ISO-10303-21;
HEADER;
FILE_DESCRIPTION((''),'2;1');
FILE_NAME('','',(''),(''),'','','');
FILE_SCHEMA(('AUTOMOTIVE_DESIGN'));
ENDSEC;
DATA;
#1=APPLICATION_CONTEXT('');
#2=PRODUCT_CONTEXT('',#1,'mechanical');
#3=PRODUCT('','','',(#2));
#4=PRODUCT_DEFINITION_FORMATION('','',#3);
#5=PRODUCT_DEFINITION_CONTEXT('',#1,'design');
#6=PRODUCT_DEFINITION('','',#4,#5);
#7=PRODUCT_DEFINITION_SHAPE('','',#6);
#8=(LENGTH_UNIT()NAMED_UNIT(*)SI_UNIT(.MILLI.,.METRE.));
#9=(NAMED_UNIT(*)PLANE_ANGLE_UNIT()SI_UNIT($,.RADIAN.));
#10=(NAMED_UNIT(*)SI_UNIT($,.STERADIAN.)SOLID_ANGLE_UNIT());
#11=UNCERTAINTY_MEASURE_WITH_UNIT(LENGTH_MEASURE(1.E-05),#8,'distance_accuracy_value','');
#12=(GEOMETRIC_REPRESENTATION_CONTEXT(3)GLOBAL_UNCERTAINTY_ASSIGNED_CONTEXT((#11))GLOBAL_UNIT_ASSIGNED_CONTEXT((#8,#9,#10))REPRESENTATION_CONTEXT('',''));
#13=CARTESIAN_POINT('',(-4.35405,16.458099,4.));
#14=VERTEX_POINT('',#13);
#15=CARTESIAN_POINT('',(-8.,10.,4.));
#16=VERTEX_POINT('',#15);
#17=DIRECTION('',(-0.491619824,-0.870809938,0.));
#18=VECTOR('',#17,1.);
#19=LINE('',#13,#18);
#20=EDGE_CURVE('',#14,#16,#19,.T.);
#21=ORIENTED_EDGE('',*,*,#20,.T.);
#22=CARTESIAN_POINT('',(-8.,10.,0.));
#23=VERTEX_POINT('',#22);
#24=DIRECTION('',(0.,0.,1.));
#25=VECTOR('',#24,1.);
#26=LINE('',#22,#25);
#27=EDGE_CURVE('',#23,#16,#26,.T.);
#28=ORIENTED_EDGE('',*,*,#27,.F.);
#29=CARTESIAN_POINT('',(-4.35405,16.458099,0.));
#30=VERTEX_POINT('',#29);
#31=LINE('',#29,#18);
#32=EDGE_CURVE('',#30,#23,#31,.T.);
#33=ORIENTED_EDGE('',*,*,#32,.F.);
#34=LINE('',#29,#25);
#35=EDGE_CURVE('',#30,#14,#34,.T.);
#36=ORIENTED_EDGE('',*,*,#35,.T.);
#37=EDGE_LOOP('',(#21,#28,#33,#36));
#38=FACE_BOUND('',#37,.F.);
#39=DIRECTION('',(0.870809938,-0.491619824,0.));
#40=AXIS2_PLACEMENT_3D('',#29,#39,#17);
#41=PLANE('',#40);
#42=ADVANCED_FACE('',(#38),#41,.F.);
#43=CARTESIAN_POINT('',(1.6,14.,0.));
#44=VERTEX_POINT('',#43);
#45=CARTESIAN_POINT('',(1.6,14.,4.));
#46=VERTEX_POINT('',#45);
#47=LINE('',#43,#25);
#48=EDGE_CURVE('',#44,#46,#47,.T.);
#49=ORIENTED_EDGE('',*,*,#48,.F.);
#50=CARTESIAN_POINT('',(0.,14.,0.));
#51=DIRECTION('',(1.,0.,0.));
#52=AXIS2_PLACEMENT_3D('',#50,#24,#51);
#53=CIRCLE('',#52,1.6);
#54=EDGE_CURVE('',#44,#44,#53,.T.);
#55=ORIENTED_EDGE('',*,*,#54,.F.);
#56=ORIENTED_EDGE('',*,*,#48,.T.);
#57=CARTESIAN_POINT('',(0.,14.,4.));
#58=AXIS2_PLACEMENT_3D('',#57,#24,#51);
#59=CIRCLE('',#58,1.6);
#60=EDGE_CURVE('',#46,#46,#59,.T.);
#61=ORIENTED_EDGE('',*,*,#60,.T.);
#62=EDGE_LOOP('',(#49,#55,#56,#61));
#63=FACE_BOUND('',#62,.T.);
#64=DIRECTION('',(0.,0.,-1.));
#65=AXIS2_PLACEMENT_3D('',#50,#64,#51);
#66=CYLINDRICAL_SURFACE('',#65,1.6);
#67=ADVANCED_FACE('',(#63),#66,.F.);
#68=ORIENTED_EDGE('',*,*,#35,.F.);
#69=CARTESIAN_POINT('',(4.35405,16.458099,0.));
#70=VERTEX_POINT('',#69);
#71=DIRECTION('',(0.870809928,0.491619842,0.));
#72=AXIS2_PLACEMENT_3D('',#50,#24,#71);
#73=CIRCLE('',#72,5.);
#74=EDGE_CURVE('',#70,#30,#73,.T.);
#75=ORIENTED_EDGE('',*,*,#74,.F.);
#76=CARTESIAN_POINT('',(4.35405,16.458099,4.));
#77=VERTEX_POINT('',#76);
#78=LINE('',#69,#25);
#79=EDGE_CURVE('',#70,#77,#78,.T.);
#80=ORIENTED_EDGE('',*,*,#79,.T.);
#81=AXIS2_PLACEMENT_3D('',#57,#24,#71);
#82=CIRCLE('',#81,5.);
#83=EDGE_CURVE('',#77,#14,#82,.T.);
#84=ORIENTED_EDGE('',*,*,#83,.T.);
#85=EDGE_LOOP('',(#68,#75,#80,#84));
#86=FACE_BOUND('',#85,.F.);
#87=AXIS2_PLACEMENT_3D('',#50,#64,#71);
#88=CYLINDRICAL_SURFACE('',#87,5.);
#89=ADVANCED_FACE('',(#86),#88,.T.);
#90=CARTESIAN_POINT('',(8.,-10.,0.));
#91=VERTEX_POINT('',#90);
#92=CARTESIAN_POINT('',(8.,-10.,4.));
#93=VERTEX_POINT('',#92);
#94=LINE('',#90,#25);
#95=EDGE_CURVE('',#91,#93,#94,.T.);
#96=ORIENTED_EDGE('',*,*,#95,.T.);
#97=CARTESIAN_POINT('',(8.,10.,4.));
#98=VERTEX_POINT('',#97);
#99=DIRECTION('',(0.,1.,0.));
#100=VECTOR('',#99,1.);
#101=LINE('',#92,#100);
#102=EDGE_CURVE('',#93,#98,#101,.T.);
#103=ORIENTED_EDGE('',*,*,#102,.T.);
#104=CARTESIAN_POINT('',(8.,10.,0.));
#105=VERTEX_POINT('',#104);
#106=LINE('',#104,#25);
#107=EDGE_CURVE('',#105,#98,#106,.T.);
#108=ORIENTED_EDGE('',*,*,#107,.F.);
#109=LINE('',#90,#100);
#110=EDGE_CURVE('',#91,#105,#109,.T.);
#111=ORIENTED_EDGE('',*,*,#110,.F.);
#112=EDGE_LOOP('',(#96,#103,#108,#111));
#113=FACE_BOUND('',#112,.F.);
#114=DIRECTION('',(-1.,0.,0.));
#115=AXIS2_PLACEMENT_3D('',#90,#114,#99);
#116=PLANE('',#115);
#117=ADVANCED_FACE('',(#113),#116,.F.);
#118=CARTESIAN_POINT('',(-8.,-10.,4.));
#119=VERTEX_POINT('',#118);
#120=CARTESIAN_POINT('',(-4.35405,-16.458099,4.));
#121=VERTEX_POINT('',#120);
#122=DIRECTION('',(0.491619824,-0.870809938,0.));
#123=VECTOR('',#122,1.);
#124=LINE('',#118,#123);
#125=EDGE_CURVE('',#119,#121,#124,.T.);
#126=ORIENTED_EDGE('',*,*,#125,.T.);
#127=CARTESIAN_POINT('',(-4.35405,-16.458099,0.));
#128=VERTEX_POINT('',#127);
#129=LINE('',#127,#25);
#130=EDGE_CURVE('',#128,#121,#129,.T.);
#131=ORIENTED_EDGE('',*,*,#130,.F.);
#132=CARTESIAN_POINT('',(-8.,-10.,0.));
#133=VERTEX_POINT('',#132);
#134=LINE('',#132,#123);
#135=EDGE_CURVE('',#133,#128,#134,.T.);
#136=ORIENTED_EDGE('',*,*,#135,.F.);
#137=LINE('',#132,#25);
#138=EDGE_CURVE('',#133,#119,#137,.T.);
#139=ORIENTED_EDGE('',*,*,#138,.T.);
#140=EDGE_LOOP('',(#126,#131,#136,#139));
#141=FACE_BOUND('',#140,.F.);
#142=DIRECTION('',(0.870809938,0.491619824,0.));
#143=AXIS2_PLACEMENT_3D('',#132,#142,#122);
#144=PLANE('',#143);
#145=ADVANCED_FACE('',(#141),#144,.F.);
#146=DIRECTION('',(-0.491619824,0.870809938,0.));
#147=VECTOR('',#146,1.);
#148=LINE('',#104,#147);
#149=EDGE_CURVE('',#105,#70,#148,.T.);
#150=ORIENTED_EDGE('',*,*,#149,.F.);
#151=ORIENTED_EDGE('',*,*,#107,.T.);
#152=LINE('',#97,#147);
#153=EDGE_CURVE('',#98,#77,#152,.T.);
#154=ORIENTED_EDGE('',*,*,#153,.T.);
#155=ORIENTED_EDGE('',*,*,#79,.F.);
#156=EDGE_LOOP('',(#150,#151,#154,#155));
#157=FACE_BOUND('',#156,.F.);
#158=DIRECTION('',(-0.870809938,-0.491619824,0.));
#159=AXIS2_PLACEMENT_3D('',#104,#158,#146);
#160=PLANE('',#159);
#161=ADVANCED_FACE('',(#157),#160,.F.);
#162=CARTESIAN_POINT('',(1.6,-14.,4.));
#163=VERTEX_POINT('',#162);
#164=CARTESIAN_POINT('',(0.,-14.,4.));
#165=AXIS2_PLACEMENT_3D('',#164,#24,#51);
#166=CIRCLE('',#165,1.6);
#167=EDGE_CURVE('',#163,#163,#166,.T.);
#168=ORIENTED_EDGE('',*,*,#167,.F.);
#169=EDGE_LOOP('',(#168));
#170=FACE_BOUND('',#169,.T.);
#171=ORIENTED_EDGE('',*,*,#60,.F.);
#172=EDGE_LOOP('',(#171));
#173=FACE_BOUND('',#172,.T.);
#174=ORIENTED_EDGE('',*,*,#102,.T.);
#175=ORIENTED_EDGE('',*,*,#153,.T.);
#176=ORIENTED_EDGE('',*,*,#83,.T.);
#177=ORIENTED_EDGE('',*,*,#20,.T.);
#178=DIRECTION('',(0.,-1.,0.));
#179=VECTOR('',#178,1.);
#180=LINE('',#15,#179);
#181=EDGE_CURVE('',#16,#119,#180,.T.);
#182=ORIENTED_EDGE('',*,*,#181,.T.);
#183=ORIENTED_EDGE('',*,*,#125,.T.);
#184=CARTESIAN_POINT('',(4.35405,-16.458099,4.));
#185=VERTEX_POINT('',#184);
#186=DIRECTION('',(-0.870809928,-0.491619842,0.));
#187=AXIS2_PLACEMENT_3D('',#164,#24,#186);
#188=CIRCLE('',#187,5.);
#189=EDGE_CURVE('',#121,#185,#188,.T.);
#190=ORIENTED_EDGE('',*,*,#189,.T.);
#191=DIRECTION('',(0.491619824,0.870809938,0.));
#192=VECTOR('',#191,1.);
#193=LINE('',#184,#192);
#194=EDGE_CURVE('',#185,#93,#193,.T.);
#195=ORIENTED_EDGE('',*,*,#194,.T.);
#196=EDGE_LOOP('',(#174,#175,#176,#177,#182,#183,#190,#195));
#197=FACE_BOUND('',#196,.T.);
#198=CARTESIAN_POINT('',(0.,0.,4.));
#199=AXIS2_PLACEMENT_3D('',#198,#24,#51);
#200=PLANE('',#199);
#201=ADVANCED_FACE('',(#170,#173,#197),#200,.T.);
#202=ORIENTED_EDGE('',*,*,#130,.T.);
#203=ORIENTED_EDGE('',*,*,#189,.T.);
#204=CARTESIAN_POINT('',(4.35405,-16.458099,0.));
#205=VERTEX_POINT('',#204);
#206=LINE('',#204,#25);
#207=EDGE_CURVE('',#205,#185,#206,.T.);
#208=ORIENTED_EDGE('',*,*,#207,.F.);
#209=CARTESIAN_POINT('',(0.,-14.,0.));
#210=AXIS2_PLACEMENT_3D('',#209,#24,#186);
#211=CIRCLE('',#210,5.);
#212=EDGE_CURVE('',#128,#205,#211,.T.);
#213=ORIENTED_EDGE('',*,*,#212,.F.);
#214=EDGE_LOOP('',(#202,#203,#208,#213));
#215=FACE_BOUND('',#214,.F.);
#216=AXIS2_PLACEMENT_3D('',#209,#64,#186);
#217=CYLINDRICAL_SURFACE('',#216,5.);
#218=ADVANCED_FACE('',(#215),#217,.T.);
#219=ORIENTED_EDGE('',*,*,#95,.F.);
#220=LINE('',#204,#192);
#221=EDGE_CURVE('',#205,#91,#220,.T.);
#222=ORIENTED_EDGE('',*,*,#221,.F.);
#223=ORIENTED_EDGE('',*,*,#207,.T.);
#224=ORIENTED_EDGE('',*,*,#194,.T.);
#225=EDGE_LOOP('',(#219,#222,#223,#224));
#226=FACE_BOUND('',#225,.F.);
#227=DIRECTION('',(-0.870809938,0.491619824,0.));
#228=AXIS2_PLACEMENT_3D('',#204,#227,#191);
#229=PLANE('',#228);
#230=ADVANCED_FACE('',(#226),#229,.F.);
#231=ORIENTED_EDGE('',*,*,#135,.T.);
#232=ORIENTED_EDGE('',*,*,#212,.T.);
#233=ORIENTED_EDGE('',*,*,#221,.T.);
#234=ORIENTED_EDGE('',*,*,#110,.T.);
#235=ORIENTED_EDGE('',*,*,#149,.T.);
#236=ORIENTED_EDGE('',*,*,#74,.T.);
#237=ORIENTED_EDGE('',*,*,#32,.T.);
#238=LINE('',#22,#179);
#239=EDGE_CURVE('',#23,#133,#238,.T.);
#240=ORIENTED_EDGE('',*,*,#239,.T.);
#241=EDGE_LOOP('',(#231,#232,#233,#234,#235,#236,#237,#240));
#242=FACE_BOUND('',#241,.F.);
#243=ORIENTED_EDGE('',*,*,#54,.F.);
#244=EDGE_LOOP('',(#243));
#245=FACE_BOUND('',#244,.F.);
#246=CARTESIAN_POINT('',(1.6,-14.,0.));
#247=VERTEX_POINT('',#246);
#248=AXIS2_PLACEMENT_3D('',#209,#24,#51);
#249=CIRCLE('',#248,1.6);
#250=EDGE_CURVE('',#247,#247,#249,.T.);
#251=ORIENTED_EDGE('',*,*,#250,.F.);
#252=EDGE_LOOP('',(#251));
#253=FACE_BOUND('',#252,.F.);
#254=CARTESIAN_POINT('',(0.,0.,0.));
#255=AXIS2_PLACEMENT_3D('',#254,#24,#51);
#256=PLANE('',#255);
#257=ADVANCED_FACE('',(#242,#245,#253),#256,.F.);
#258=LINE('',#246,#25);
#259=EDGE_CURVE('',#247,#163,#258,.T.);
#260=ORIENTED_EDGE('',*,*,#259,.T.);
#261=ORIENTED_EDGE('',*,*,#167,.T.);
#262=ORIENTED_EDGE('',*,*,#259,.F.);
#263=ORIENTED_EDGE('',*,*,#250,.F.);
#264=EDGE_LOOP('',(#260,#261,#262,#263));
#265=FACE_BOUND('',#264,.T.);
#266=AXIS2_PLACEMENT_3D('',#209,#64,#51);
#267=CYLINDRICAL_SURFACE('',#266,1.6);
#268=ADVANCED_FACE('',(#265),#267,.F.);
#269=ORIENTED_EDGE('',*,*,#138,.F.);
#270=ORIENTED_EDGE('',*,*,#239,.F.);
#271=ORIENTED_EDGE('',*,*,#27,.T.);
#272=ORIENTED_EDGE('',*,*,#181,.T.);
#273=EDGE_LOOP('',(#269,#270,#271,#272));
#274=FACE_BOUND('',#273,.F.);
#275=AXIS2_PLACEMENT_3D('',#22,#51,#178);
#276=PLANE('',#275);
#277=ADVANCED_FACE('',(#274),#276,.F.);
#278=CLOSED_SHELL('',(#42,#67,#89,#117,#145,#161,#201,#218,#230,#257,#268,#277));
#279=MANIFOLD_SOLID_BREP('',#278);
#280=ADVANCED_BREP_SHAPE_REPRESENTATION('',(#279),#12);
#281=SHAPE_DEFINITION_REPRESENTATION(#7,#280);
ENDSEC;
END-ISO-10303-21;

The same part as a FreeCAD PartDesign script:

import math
import FreeCAD as App
import Part
import Sketcher

V = App.Vector

doc = App.newDocument("Part")
params = doc.addObject("Spreadsheet::Sheet", "Params")
for row, (alias, value) in enumerate([
    ("sketch1_radius", "5 mm"),
    ("sketch1_diameter", "3.2 mm"),
    ("sketch1_height", "20 mm"),
    ("pad1_length", "4 mm"),
], start=1):
    params.set(f"A{row}", alias)
    params.set(f"B{row}", "=" + value)
    params.setAlias(f"B{row}", alias)

body = doc.addObject("PartDesign::Body", "Body")

sketch1 = body.newObject("Sketcher::SketchObject", "Sketch")
sketch1.AttachmentSupport = (doc.getObject("XY_Plane"), [""])
sketch1.MapMode = "FlatFace"
sketch1.addGeometry([
    Part.ArcOfCircle(Part.Circle(V(0, 14, 0), V(0, 0, 1), 5), math.radians(29.447105), math.radians(150.552895)),
    Part.LineSegment(V(-4.35405, 16.458099, 0), V(-8, 10, 0)),
    Part.LineSegment(V(-8, 10, 0), V(-8, -10, 0)),
    Part.LineSegment(V(-8, -10, 0), V(-4.35405, -16.458099, 0)),
    Part.ArcOfCircle(Part.Circle(V(0, -14, 0), V(0, 0, 1), 5), math.radians(-150.552895), math.radians(-29.447105)),
    Part.LineSegment(V(4.35405, -16.458099, 0), V(8, -10, 0)),
    Part.LineSegment(V(8, -10, 0), V(8, 10, 0)),
    Part.LineSegment(V(8, 10, 0), V(4.35405, 16.458099, 0)),
    Part.Circle(V(0, -14, 0), V(0, 0, 1), 1.6),
    Part.Circle(V(0, 14, 0), V(0, 0, 1), 1.6),
], False)
sketch1.addConstraint([
    Sketcher.Constraint("Tangent", 0, 2, 1, 1),
    Sketcher.Constraint("Coincident", 1, 2, 2, 1),
    Sketcher.Constraint("Coincident", 2, 2, 3, 1),
    Sketcher.Constraint("Tangent", 3, 2, 4, 1),
    Sketcher.Constraint("Tangent", 4, 2, 5, 1),
    Sketcher.Constraint("Coincident", 5, 2, 6, 1),
    Sketcher.Constraint("Coincident", 6, 2, 7, 1),
    Sketcher.Constraint("Tangent", 7, 2, 0, 1),
    Sketcher.Constraint("Vertical", 2),
    Sketcher.Constraint("Vertical", 6),
    Sketcher.Constraint("Coincident", 8, 3, 4, 3),
    Sketcher.Constraint("Coincident", 9, 3, 0, 3),
    Sketcher.Constraint("Equal", 0, 4),
    Sketcher.Constraint("Equal", 8, 9),
    Sketcher.Constraint("Symmetric", 0, 3, 4, 3, -1, 1),
    Sketcher.Constraint("Symmetric", 1, 2, 5, 2, -1, 1),
    Sketcher.Constraint("Symmetric", 3, 2, 4, 2, -2),
    Sketcher.Constraint("Parallel", 3, 7),
    Sketcher.Constraint("Radius", 0, 5.0),
    Sketcher.Constraint("Diameter", 8, 3.2),
    Sketcher.Constraint("DistanceY", 2, 2, 2, 1, 20.0),
    Sketcher.Constraint("DistanceY", -1, 1, 0, 3, 14.0),
    Sketcher.Constraint("DistanceX", 1, 2, -1, 1, 8.0),
])
sketch1.setExpression("Constraints[18]", "Params.sketch1_radius")
sketch1.setExpression("Constraints[19]", "Params.sketch1_diameter")
sketch1.setExpression("Constraints[20]", "Params.sketch1_height")
pad1 = body.newObject("PartDesign::Pad", "Pad")
pad1.Profile = sketch1
pad1.setExpression("Length", "Params.pad1_length")

doc.recompute()
